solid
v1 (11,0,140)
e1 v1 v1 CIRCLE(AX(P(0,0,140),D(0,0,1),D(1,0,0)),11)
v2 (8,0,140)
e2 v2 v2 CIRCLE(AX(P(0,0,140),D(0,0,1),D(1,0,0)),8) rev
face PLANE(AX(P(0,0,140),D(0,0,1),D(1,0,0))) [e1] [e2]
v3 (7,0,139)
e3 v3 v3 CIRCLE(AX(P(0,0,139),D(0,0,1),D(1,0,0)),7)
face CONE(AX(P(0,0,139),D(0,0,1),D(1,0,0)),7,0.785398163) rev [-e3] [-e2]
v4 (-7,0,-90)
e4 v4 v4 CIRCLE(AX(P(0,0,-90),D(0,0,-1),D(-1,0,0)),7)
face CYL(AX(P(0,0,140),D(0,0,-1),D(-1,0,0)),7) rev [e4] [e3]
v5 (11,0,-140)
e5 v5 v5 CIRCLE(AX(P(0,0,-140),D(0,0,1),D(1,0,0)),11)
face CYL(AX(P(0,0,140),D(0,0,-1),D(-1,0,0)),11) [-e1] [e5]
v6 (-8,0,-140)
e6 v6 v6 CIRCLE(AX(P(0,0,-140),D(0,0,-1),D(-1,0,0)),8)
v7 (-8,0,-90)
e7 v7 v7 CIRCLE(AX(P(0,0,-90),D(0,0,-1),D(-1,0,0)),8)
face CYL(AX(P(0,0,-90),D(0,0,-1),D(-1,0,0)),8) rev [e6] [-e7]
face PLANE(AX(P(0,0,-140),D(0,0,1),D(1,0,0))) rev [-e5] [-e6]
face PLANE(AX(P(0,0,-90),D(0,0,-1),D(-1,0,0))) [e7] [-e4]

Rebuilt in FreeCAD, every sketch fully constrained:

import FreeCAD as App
import Part
import Sketcher
from FreeCAD import Vector
Q = App.Units.Quantity


def edges_at(feature, points):
    """Names of the edges that pass closest to the given points."""
    edges = feature.Shape.Edges
    near = lambda p: min(range(len(edges)), key=lambda i: edges[i].distToShape(Part.Vertex(*p))[0])
    return sorted({f"Edge{near(p) + 1}" for p in points})

doc = App.newDocument("Part")
body = doc.addObject("PartDesign::Body", "Body")

# Sketch on XY plane
sketch1 = doc.addObject("Sketcher::SketchObject", "Sketch")
body.addObject(sketch1)
sketch1.AttachmentSupport = (doc.XY_Plane, [""])
sketch1.MapMode = "FlatFace"
sketch1.addGeometry([
    Part.Circle(Vector(0, 0, 0), Vector(0, 0, 1), 11),
    Part.Circle(Vector(0, 0, 0), Vector(0, 0, 1), 7),
], False)
sketch1.addConstraint([
    Sketcher.Constraint("Coincident", 0, 3, -1, 1),
    Sketcher.Constraint("Coincident", 1, 3, -1, 1),
    Sketcher.Constraint("Diameter", 0, Q("22 mm")),
    Sketcher.Constraint("Diameter", 1, Q("14 mm")),
])
pad1 = doc.addObject("PartDesign::Pad", "Pad")
body.addObject(pad1)
pad1.Profile = sketch1
pad1.Length = 280
pad1.Midplane = True

# Sketch on XY plane
sketch2 = doc.addObject("Sketcher::SketchObject", "Sketch001")
body.addObject(sketch2)
sketch2.AttachmentSupport = (doc.XY_Plane, [""])
sketch2.MapMode = "FlatFace"
sketch2.AttachmentOffset = App.Placement(Vector(0, 0, -140), App.Rotation())
sketch2.addGeometry(Part.Circle(Vector(0, 0, 0), Vector(0, 0, 1), 8), False)
sketch2.addConstraint([
    Sketcher.Constraint("Coincident", 0, 3, -1, 1),
    Sketcher.Constraint("Diameter", 0, Q("16 mm")),
])
pocket1 = doc.addObject("PartDesign::Pocket", "Pocket")
body.addObject(pocket1)
pocket1.Profile = sketch2
pocket1.Length = 50
pocket1.Reversed = True
doc.recompute()

chamfer = doc.addObject("PartDesign::Chamfer", "Chamfer")
body.addObject(chamfer)
chamfer.Base = (pocket1, edges_at(pocket1, [(-7, 0, 140)]))
chamfer.Size = 1

doc.recompute()
